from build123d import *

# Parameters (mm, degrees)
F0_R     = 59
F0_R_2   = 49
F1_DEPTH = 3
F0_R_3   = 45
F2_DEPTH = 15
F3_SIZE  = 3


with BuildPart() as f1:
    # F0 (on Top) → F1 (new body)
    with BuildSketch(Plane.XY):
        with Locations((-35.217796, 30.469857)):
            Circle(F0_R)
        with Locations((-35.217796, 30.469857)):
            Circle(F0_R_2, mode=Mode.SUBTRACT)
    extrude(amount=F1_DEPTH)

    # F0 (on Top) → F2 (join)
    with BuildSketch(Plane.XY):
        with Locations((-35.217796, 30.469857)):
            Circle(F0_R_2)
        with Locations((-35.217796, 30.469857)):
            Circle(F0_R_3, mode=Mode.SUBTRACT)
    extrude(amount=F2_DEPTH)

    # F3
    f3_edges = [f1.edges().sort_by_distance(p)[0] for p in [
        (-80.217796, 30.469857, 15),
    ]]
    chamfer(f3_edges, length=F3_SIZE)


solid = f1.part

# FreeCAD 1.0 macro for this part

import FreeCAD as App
import Part
import Sketcher


def edges_at(feature, points):
    """Names of the edges that pass closest to the given points."""
    edges = feature.Shape.Edges
    near = lambda p: min(range(len(edges)), key=lambda i: edges[i].distToShape(Part.Vertex(*p))[0])
    return sorted({f"Edge{near(p) + 1}" for p in points})

doc = App.newDocument("Part")
body = doc.addObject("PartDesign::Body", "Body")

# Sketch on XY plane
sketch1 = body.newObject("Sketcher::SketchObject", "Sketch")
sketch1.AttachmentSupport = (doc.getObject("XY_Plane"), [""])
sketch1.MapMode = "FlatFace"
sketch1.addGeometry(Part.Circle(App.Vector(-35, 30, 0), App.Vector(0, 0, 1), 59), False)
sketch1.addGeometry(Part.Circle(App.Vector(-35, 30, 0), App.Vector(0, 0, 1), 49), False)
sketch1.addConstraint(Sketcher.Constraint("Coincident", 1, 3, 0, 3))
sketch1.addConstraint(Sketcher.Constraint("Diameter", 0, 118.0))
sketch1.addConstraint(Sketcher.Constraint("Diameter", 1, 98.0))
sketch1.addConstraint(Sketcher.Constraint("DistanceX", 0, 3, -1, 1, 35.217796))
sketch1.addConstraint(Sketcher.Constraint("DistanceY", -1, 1, 0, 3, 30.469857))
pad1 = body.newObject("PartDesign::Pad", "Pad")
pad1.Profile = sketch1
pad1.Length = 3

# Sketch on XY plane
sketch2 = body.newObject("Sketcher::SketchObject", "Sketch001")
sketch2.AttachmentSupport = (doc.getObject("XY_Plane"), [""])
sketch2.MapMode = "FlatFace"
sketch2.addGeometry(Part.Circle(App.Vector(-35, 30, 0), App.Vector(0, 0, 1), 49), False)
sketch2.addGeometry(Part.Circle(App.Vector(-35, 30, 0), App.Vector(0, 0, 1), 45), False)
sketch2.addConstraint(Sketcher.Constraint("Coincident", 1, 3, 0, 3))
sketch2.addConstraint(Sketcher.Constraint("Diameter", 0, 98.0))
sketch2.addConstraint(Sketcher.Constraint("Diameter", 1, 90.0))
sketch2.addConstraint(Sketcher.Constraint("DistanceX", 0, 3, -1, 1, 35.217796))
sketch2.addConstraint(Sketcher.Constraint("DistanceY", -1, 1, 0, 3, 30.469857))
pad2 = body.newObject("PartDesign::Pad", "Pad001")
pad2.Profile = sketch2
pad2.Length = 15
doc.recompute()

chamfer = body.newObject("PartDesign::Chamfer", "Chamfer")
chamfer.Base = (pad2, edges_at(pad2, [(-80.218, 30.47, 15)]))
chamfer.Size = 3

doc.recompute()
